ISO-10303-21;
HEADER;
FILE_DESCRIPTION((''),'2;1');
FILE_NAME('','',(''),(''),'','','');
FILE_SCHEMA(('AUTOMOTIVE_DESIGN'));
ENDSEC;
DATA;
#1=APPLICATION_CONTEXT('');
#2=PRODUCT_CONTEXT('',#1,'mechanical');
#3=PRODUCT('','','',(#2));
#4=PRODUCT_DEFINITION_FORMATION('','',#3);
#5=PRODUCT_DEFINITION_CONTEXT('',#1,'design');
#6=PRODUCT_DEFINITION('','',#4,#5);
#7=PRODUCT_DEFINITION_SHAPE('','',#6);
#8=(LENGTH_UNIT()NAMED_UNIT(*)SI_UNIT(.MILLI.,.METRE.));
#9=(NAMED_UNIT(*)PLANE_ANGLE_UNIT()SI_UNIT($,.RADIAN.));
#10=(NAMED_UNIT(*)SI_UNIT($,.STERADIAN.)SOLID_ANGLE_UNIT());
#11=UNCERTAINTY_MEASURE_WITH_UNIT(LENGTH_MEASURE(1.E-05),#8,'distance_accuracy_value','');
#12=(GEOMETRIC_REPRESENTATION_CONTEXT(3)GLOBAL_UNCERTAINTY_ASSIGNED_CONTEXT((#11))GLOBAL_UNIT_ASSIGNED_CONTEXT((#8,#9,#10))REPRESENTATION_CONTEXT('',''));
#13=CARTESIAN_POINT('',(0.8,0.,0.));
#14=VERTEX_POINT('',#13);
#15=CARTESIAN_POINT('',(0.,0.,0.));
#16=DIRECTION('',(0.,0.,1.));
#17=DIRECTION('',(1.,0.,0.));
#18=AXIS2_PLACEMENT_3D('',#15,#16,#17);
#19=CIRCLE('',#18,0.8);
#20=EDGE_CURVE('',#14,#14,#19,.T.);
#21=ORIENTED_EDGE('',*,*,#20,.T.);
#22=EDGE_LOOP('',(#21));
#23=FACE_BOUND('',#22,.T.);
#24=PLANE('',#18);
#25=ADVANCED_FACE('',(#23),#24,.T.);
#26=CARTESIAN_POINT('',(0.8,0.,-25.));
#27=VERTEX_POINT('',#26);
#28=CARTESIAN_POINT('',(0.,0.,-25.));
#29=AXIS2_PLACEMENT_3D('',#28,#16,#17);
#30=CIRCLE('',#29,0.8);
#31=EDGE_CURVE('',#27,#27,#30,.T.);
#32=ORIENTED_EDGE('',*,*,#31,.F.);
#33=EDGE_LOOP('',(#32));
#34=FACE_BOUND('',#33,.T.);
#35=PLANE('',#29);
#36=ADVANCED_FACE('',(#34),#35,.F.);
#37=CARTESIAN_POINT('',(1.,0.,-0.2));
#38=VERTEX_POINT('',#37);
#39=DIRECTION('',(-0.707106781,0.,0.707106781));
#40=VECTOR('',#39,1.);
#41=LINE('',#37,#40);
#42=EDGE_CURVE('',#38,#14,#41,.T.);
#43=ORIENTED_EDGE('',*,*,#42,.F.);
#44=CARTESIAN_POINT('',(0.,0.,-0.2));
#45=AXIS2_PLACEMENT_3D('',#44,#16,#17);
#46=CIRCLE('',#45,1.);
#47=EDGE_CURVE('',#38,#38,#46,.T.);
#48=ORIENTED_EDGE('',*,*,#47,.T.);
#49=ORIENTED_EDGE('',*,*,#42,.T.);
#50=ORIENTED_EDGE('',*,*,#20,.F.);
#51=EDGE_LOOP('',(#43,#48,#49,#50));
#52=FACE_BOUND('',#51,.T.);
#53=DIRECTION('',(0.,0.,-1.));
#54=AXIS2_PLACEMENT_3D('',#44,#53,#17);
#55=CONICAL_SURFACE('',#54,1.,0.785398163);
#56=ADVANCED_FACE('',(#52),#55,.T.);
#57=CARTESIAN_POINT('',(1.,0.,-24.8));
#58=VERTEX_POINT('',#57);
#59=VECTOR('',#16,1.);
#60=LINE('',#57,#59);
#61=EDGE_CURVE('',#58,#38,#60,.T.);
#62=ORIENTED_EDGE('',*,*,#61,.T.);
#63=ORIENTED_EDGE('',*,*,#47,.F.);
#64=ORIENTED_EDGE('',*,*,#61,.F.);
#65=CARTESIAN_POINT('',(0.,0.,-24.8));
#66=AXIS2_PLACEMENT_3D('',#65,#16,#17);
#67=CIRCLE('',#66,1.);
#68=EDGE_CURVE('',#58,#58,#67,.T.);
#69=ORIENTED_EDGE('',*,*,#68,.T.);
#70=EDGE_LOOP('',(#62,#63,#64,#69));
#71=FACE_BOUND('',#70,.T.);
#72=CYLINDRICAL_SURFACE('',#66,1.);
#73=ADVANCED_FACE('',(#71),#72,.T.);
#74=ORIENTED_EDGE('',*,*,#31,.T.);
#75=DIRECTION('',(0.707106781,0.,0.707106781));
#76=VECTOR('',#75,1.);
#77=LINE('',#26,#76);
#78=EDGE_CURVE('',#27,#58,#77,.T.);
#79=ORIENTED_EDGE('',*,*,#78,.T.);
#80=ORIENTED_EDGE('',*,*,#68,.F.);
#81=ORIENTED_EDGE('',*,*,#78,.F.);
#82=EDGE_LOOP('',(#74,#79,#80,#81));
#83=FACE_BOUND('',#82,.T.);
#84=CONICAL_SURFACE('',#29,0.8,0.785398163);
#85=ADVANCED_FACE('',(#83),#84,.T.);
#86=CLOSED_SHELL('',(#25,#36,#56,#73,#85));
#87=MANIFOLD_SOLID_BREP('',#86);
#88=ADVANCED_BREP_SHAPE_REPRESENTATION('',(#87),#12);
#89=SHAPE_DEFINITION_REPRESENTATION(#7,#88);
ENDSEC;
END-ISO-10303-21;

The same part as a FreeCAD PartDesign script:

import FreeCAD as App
import Part
import Sketcher

V = App.Vector
Q = App.Units.Quantity


def add_polygon(sketch, points):
    """Adds a closed chain of lines whose ends are joined by coincident constraints."""
    first, n = sketch.GeometryCount, len(points)
    for a, b in zip(points, points[1:] + points[:1]):
        sketch.addGeometry(Part.LineSegment(App.Vector(*a, 0), App.Vector(*b, 0)), False)
    for i in range(n):
        sketch.addConstraint(Sketcher.Constraint("Coincident", first + i, 2, first + (i + 1) % n, 1))

doc = App.newDocument("Part")
body = doc.addObject("PartDesign::Body", "Body")

# Sketch on XZ plane
sketch1 = body.newObject("Sketcher::SketchObject", "Sketch")
sketch1.AttachmentSupport = (doc.getObject("XZ_Plane"), [""])
sketch1.MapMode = "FlatFace"
add_polygon(sketch1, [(0, -25), (0, 0), (0.8, 0), (1, -0.2), (1, -24.8), (0.8, -25)])  # lines 0-5
sketch1.addConstraint([
    Sketcher.Constraint("Vertical", 0),
    Sketcher.Constraint("Horizontal", 1),
    Sketcher.Constraint("Vertical", 3),
    Sketcher.Constraint("Horizontal", 5),
    Sketcher.Constraint("Coincident", 0, 2, -1, 1),
    Sketcher.Constraint("Perpendicular", 2, 4),
    Sketcher.Constraint("Vertical", 1, 2, 4, 2),
    Sketcher.Constraint("Equal", 2, 4),
    Sketcher.Constraint("DistanceY", 0, 1, 0, 2, Q("25 mm")),
    Sketcher.Constraint("DistanceX", 1, 1, 1, 2, Q("0.8 mm")),
    Sketcher.Constraint("DistanceY", 3, 2, 3, 1, Q("24.6 mm")),
])
revolution = body.newObject("PartDesign::Revolution", "Revolution")
revolution.Profile = sketch1
revolution.ReferenceAxis = (sketch1, ["V_Axis"])
revolution.Angle = 360

doc.recompute()
